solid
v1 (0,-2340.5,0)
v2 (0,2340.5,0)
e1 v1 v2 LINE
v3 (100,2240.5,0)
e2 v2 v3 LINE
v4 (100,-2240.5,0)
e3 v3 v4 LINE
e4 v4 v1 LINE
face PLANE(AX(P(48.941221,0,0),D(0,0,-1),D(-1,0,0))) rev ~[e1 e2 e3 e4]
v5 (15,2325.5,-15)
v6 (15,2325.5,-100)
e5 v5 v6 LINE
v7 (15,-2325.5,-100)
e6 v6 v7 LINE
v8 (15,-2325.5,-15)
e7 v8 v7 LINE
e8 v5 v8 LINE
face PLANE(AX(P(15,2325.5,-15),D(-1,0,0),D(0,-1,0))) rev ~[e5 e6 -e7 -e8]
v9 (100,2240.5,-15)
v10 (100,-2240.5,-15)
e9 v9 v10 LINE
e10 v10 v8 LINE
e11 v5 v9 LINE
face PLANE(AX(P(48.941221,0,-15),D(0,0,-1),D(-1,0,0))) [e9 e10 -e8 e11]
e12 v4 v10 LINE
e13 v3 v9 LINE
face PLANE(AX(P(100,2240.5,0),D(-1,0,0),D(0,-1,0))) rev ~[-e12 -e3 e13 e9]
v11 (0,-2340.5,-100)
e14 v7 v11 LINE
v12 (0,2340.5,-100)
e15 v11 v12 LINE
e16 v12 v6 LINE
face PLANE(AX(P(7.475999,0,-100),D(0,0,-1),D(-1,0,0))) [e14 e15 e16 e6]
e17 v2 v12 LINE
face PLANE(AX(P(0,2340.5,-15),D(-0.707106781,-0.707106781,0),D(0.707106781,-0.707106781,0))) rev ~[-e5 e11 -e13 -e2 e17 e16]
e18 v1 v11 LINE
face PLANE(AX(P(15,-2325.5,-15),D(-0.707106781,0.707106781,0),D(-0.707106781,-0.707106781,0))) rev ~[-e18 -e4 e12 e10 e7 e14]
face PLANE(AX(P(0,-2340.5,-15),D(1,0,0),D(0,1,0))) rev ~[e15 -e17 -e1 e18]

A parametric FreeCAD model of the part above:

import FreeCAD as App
import Part
import Sketcher
Q = App.Units.Quantity

doc = App.newDocument("Part")
body = doc.addObject("PartDesign::Body", "Body")

# Sketch on XY plane
sketch1 = doc.addObject("Sketcher::SketchObject", "Sketch")
body.addObject(sketch1)
sketch1.AttachmentSupport = (doc.XY_Plane, [""])
sketch1.MapMode = "FlatFace"
sketch1.addGeometry([
    Part.LineSegment(App.Vector(-100, -2240, 0), App.Vector(0, -2340, 0)),
    Part.LineSegment(App.Vector(0, -2340, 0), App.Vector(0, 2340, 0)),
    Part.LineSegment(App.Vector(0, 2340, 0), App.Vector(-100, 2240, 0)),
    Part.LineSegment(App.Vector(-100, 2240, 0), App.Vector(-100, -2240, 0)),
], False)
sketch1.addConstraint([
    Sketcher.Constraint("Coincident", 0, 2, 1, 1),
    Sketcher.Constraint("Coincident", 1, 2, 2, 1),
    Sketcher.Constraint("Coincident", 2, 2, 3, 1),
    Sketcher.Constraint("Coincident", 3, 2, 0, 1),
    Sketcher.Constraint("Vertical", 1),
    Sketcher.Constraint("Vertical", 3),
    Sketcher.Constraint("Symmetric", 0, 2, 1, 2, -1, 1),
    Sketcher.Constraint("Perpendicular", 0, 2),
    Sketcher.Constraint("Equal", 0, 2),
    Sketcher.Constraint("DistanceY", 1, 1, 1, 2, Q("4681 mm")),
    Sketcher.Constraint("DistanceY", 3, 2, 3, 1, Q("4481 mm")),
])
pad1 = doc.addObject("PartDesign::Pad", "Pad")
body.addObject(pad1)
pad1.Profile = sketch1
pad1.Length = 15

# Sketch on XY plane
sketch2 = doc.addObject("Sketcher::SketchObject", "Sketch001")
body.addObject(sketch2)
sketch2.AttachmentSupport = (doc.XY_Plane, [""])
sketch2.MapMode = "FlatFace"
sketch2.AttachmentOffset = App.Placement(App.Vector(0, 0, 15), App.Rotation())
sketch2.addGeometry([
    Part.LineSegment(App.Vector(-15, -2326, 0), App.Vector(0, -2340, 0)),
    Part.LineSegment(App.Vector(0, -2340, 0), App.Vector(0, 2340, 0)),
    Part.LineSegment(App.Vector(0, 2340, 0), App.Vector(-15, 2326, 0)),
    Part.LineSegment(App.Vector(-15, 2326, 0), App.Vector(-15, -2326, 0)),
], False)
sketch2.addConstraint([
    Sketcher.Constraint("Coincident", 0, 2, 1, 1),
    Sketcher.Constraint("Coincident", 1, 2, 2, 1),
    Sketcher.Constraint("Coincident", 2, 2, 3, 1),
    Sketcher.Constraint("Coincident", 3, 2, 0, 1),
    Sketcher.Constraint("Vertical", 1),
    Sketcher.Constraint("Vertical", 3),
    Sketcher.Constraint("Symmetric", 0, 2, 1, 2, -1, 1),
    Sketcher.Constraint("Perpendicular", 0, 2),
    Sketcher.Constraint("Equal", 0, 2),
    Sketcher.Constraint("DistanceY", 1, 1, 1, 2, Q("4681 mm")),
    Sketcher.Constraint("DistanceY", 3, 2, 3, 1, Q("4651 mm")),
])
pad2 = doc.addObject("PartDesign::Pad", "Pad001")
body.addObject(pad2)
pad2.Profile = sketch2
pad2.Length = 85
body2 = doc.addObject("PartDesign::Body", "Body001")
doc.recompute()

mirroring = doc.addObject("Part::Mirroring", "Mirroring")
mirroring.Source = body
mirroring.Base = App.Vector(0, 0, 0)
mirroring.Normal = App.Vector(0, 0, 1)
body2.BaseFeature = mirroring
doc.recompute()
body3 = doc.addObject("PartDesign::Body", "Body002")
doc.recompute()

mirroring2 = doc.addObject("Part::Mirroring", "Mirroring001")
mirroring2.Source = body2
mirroring2.Base = App.Vector(0, 0, 0)
mirroring2.Normal = App.Vector(1, 0, 0)
body3.BaseFeature = mirroring2
doc.recompute()
body.Visibility = False
body2.Visibility = False
mirroring.Visibility = False
mirroring2.Visibility = False

doc.recompute()
